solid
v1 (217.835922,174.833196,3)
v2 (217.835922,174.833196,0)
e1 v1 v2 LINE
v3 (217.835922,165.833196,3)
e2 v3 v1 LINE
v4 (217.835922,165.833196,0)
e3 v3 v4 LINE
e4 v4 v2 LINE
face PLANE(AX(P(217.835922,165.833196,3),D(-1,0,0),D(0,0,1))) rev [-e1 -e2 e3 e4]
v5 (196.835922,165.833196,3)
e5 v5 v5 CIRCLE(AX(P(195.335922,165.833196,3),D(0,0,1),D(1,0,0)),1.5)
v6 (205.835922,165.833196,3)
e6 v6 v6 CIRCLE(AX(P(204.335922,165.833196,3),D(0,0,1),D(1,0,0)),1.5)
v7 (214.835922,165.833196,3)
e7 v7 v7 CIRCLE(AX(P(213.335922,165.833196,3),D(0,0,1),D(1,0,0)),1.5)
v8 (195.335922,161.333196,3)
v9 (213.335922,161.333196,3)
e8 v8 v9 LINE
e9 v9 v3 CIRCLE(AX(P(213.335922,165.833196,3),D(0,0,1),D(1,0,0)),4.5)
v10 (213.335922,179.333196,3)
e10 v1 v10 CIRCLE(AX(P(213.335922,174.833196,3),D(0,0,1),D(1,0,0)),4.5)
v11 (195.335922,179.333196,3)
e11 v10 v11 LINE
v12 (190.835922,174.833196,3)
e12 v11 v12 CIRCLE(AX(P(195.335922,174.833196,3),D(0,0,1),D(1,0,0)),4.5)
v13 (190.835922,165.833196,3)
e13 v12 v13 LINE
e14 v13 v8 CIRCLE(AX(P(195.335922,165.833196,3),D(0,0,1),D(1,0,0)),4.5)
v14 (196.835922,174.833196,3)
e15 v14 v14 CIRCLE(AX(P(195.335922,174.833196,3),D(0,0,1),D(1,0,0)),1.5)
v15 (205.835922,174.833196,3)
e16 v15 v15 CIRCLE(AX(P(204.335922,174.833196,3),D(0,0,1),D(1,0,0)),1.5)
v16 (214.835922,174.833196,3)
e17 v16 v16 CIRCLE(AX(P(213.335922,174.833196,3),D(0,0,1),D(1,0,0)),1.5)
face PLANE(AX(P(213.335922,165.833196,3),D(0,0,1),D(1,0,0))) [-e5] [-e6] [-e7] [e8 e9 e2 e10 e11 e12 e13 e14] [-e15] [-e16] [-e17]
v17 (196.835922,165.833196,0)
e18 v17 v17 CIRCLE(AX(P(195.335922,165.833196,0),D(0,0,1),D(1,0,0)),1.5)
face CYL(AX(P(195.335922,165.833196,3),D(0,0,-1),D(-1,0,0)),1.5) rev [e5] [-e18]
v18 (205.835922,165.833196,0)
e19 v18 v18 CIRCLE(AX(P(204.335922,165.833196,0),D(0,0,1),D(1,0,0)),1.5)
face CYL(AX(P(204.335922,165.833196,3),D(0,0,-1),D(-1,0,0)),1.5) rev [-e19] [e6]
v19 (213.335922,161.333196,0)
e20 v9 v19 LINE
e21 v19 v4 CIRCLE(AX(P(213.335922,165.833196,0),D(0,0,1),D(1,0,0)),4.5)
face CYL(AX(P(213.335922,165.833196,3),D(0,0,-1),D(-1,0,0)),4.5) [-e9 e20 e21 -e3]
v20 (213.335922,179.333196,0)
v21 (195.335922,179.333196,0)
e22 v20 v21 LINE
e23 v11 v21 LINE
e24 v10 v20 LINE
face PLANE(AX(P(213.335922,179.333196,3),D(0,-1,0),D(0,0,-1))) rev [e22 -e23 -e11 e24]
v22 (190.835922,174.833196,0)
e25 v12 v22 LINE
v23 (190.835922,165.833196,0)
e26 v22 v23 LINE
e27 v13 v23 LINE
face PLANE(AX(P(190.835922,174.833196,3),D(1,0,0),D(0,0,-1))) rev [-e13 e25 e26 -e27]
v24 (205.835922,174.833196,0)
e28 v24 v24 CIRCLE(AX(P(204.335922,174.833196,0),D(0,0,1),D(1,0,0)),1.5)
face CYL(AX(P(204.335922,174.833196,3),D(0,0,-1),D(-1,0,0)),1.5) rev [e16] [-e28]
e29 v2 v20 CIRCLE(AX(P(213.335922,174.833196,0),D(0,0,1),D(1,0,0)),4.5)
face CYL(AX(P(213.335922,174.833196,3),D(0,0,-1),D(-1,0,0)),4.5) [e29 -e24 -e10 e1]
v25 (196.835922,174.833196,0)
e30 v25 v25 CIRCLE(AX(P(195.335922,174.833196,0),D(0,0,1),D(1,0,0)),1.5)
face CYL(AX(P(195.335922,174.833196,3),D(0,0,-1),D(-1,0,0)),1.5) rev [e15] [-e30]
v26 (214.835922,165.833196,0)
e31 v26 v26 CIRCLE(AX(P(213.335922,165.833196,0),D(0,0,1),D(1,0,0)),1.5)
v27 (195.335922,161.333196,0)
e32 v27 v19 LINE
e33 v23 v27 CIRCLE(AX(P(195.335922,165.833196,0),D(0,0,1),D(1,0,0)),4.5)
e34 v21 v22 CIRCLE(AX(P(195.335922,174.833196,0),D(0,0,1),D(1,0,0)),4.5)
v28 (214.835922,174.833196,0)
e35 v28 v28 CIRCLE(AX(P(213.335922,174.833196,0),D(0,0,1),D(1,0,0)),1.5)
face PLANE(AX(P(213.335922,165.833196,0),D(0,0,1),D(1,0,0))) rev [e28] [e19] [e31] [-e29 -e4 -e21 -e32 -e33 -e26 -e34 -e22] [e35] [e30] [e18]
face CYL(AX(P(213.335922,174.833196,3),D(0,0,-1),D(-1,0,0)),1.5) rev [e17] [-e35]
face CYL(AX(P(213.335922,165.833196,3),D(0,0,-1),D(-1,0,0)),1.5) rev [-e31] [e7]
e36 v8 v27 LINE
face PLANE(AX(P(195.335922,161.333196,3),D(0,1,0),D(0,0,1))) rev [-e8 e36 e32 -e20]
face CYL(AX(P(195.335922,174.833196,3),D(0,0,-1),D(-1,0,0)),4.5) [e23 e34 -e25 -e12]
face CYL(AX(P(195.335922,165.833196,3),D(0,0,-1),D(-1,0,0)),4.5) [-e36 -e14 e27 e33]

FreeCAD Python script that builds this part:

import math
import FreeCAD as App
import Part
import Sketcher
from FreeCAD import Vector

doc = App.newDocument("Part")
body = doc.addObject("PartDesign::Body", "Body")

# Sketch on XY plane
sketch1 = body.newObject("Sketcher::SketchObject", "Sketch")
sketch1.AttachmentSupport = (doc.getObject("XY_Plane"), [""])
sketch1.MapMode = "FlatFace"
sketch1.addGeometry(Part.LineSegment(Vector(195.3, 161.3, 0), Vector(213.3, 161.3, 0)), False)
sketch1.addGeometry(Part.ArcOfCircle(Part.Circle(Vector(213.3, 165.8, 0), Vector(0, 0, 1), 4.5), math.radians(-90), math.radians(0)), False)
sketch1.addGeometry(Part.LineSegment(Vector(217.8, 165.8, 0), Vector(217.8, 174.8, 0)), False)
sketch1.addGeometry(Part.ArcOfCircle(Part.Circle(Vector(213.3, 174.8, 0), Vector(0, 0, 1), 4.5), math.radians(0), math.radians(90)), False)
sketch1.addGeometry(Part.LineSegment(Vector(213.3, 179.3, 0), Vector(195.3, 179.3, 0)), False)
sketch1.addGeometry(Part.ArcOfCircle(Part.Circle(Vector(195.3, 174.8, 0), Vector(0, 0, 1), 4.5), math.radians(90), math.radians(180)), False)
sketch1.addGeometry(Part.LineSegment(Vector(190.8, 174.8, 0), Vector(190.8, 165.8, 0)), False)
sketch1.addGeometry(Part.ArcOfCircle(Part.Circle(Vector(195.3, 165.8, 0), Vector(0, 0, 1), 4.5), math.radians(180), math.radians(270)), False)
sketch1.addGeometry(Part.Circle(Vector(195.3, 165.8, 0), Vector(0, 0, 1), 1.5), False)
sketch1.addGeometry(Part.Circle(Vector(204.3, 165.8, 0), Vector(0, 0, 1), 1.5), False)
sketch1.addGeometry(Part.Circle(Vector(213.3, 165.8, 0), Vector(0, 0, 1), 1.5), False)
sketch1.addGeometry(Part.Circle(Vector(195.3, 174.8, 0), Vector(0, 0, 1), 1.5), False)
sketch1.addGeometry(Part.Circle(Vector(204.3, 174.8, 0), Vector(0, 0, 1), 1.5), False)
sketch1.addGeometry(Part.Circle(Vector(213.3, 174.8, 0), Vector(0, 0, 1), 1.5), False)
sketch1.addConstraint(Sketcher.Constraint("Tangent", 0, 2, 1, 1))
sketch1.addConstraint(Sketcher.Constraint("Tangent", 1, 2, 2, 1))
sketch1.addConstraint(Sketcher.Constraint("Tangent", 2, 2, 3, 1))
sketch1.addConstraint(Sketcher.Constraint("Tangent", 3, 2, 4, 1))
sketch1.addConstraint(Sketcher.Constraint("Tangent", 4, 2, 5, 1))
sketch1.addConstraint(Sketcher.Constraint("Tangent", 5, 2, 6, 1))
sketch1.addConstraint(Sketcher.Constraint("Tangent", 6, 2, 7, 1))
sketch1.addConstraint(Sketcher.Constraint("Tangent", 7, 2, 0, 1))
sketch1.addConstraint(Sketcher.Constraint("Horizontal", 0))
sketch1.addConstraint(Sketcher.Constraint("Vertical", 2))
sketch1.addConstraint(Sketcher.Constraint("Horizontal", 4))
sketch1.addConstraint(Sketcher.Constraint("Vertical", 6))
sketch1.addConstraint(Sketcher.Constraint("Coincident", 8, 3, 7, 3))
sketch1.addConstraint(Sketcher.Constraint("Coincident", 10, 3, 1, 3))
sketch1.addConstraint(Sketcher.Constraint("Coincident", 11, 3, 5, 3))
sketch1.addConstraint(Sketcher.Constraint("Coincident", 13, 3, 3, 3))
sketch1.addConstraint(Sketcher.Constraint("Equal", 1, 3))
sketch1.addConstraint(Sketcher.Constraint("Equal", 3, 5))
sketch1.addConstraint(Sketcher.Constraint("Equal", 5, 7))
sketch1.addConstraint(Sketcher.Constraint("Equal", 8, 9))
sketch1.addConstraint(Sketcher.Constraint("Equal", 9, 10))
sketch1.addConstraint(Sketcher.Constraint("Equal", 10, 11))
sketch1.addConstraint(Sketcher.Constraint("Equal", 11, 12))
sketch1.addConstraint(Sketcher.Constraint("Equal", 12, 13))
sketch1.addConstraint(Sketcher.Constraint("Horizontal", 8, 3, 9, 3))
sketch1.addConstraint(Sketcher.Constraint("Horizontal", 11, 3, 12, 3))
sketch1.addConstraint(Sketcher.Constraint("Vertical", 9, 3, 12, 3))
sketch1.addConstraint(Sketcher.Constraint("Diameter", 8, 3.0))
sketch1.addConstraint(Sketcher.Constraint("Radius", 1, 4.5))
sketch1.addConstraint(Sketcher.Constraint("DistanceX", 0, 1, 0, 2, 18.0))
sketch1.addConstraint(Sketcher.Constraint("DistanceY", 2, 1, 2, 2, 9.0))
sketch1.addConstraint(Sketcher.Constraint("DistanceX", 8, 3, 9, 3, 9.0))
sketch1.addConstraint(Sketcher.Constraint("DistanceX", -1, 1, 1, 3, 213.335922))
sketch1.addConstraint(Sketcher.Constraint("DistanceY", -1, 1, 1, 3, 165.833196))
pad1 = body.newObject("PartDesign::Pad", "Pad")
pad1.Profile = sketch1
pad1.Length = 3

doc.recompute()
